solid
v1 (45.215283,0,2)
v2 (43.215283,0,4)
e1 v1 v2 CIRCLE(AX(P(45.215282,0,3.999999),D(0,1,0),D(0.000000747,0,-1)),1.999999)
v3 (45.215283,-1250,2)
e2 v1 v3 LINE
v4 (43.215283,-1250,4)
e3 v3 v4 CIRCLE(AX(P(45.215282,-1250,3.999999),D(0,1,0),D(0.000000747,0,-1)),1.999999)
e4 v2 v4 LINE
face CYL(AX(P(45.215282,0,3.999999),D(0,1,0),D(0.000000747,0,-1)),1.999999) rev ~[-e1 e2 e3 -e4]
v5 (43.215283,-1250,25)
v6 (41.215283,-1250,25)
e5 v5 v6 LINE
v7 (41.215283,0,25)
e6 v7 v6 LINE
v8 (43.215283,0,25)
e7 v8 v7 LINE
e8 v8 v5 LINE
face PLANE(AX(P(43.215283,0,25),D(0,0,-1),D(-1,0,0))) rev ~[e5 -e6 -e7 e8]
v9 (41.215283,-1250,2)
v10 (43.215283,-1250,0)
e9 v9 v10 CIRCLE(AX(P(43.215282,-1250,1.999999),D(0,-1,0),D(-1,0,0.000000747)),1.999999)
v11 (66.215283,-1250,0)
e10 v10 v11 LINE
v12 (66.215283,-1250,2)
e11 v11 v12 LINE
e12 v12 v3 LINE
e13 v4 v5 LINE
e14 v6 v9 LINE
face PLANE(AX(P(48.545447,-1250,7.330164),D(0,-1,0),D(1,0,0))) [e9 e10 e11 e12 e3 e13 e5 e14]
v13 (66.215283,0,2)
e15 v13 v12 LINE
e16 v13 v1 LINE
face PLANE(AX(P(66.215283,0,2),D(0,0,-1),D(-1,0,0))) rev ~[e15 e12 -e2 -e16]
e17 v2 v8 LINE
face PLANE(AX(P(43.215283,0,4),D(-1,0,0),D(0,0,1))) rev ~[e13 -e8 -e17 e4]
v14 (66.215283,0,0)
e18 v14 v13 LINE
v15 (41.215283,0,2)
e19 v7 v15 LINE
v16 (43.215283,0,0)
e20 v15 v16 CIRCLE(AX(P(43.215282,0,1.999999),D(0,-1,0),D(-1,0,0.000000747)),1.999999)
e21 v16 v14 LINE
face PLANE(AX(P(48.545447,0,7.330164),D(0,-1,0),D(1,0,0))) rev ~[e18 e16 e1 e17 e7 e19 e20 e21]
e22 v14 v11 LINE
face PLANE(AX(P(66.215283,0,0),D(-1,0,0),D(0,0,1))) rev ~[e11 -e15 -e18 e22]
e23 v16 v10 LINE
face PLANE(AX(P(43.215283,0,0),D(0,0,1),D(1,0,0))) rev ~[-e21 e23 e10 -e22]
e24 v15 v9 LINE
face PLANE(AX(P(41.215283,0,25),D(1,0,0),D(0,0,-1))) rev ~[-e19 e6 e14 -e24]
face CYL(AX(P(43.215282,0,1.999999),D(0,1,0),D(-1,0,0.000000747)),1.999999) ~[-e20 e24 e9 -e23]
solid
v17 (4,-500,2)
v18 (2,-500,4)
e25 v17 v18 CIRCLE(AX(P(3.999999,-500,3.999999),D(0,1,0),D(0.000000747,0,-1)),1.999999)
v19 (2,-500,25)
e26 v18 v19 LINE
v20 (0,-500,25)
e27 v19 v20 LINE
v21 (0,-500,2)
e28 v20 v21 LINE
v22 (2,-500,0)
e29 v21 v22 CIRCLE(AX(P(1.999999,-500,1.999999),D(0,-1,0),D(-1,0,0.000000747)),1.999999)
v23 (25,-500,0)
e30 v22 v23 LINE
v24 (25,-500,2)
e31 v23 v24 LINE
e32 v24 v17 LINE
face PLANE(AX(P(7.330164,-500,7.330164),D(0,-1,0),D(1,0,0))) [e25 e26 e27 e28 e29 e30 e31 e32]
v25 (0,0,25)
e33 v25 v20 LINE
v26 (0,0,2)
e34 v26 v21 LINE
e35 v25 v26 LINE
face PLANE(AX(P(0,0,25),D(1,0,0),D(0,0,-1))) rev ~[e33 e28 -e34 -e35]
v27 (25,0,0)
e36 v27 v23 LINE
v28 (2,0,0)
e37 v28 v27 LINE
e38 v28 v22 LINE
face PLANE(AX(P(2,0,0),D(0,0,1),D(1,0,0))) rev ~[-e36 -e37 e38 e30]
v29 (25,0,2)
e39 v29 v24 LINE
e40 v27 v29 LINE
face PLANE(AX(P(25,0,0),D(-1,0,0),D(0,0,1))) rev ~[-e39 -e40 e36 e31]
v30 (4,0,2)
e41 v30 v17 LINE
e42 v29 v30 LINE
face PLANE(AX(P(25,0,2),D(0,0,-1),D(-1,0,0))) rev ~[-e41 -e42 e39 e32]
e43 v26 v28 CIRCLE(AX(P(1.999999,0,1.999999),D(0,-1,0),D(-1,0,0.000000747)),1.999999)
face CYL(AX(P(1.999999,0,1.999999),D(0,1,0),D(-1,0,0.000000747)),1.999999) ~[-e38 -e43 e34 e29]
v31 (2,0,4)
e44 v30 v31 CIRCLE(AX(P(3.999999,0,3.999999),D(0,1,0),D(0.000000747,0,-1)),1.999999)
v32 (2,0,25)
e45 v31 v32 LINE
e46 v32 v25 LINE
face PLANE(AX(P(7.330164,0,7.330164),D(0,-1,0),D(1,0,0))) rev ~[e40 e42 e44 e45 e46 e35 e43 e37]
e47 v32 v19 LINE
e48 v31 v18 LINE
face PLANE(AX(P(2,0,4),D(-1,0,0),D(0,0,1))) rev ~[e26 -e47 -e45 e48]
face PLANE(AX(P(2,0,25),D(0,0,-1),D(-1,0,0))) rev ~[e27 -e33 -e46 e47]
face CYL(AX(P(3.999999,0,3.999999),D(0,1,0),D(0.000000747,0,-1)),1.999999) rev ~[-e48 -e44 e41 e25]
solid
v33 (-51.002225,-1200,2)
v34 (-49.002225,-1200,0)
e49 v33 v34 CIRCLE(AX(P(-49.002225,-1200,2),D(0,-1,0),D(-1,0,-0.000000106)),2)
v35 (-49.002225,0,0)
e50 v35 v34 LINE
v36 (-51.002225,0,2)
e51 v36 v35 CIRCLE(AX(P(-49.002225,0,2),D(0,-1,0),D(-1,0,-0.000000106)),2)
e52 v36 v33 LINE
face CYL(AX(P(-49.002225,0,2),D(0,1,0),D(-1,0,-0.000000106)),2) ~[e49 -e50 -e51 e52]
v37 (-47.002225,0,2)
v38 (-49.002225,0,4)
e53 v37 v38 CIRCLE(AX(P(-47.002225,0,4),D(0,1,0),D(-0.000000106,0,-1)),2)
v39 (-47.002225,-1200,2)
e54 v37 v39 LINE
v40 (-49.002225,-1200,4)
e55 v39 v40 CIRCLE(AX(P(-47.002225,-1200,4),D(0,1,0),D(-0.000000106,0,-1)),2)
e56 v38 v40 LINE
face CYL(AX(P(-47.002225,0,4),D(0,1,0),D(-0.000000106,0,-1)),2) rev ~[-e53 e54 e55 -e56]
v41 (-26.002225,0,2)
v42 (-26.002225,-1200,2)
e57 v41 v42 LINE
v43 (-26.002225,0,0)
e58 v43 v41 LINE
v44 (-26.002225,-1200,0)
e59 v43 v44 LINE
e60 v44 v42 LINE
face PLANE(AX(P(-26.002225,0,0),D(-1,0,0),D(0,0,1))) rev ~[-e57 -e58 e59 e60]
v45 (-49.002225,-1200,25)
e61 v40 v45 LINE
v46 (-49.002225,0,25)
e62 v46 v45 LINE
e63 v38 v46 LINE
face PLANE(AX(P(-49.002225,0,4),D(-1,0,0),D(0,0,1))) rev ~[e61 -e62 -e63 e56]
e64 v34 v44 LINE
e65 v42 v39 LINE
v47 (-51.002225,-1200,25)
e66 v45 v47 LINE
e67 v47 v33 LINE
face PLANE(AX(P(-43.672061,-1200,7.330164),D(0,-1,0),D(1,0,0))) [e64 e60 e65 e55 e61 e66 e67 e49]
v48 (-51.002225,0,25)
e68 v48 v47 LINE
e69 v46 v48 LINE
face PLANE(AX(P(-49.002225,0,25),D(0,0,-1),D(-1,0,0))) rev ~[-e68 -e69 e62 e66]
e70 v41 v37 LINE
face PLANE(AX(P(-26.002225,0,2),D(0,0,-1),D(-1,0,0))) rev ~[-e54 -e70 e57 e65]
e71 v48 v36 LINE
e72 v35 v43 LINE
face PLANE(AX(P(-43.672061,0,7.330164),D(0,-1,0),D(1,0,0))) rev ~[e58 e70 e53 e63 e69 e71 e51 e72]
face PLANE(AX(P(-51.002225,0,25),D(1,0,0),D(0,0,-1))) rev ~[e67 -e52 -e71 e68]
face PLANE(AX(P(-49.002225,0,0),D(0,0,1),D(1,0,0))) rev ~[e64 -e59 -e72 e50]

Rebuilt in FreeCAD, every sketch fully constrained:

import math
import FreeCAD as App
import Part
import Sketcher

V = App.Vector

doc = App.newDocument("Part")
body = doc.addObject("PartDesign::Body", "Body")

sketch1 = body.newObject("Sketcher::SketchObject", "Sketch")
sketch1.AttachmentSupport = (doc.getObject("XZ_Plane"), [""])
sketch1.MapMode = "FlatFace"
sketch1.addGeometry(Part.LineSegment(V(0, 25, 0), V(0, 2, 0)), False)
sketch1.addGeometry(Part.ArcOfCircle(Part.Circle(V(1.999999, 1.999999, 0), V(0, 0, 1), 1.999999), math.radians(179.999957), math.radians(270.000043)), False)
sketch1.addGeometry(Part.LineSegment(V(2, 0, 0), V(25, 0, 0)), False)
sketch1.addGeometry(Part.LineSegment(V(25, 0, 0), V(25, 2, 0)), False)
sketch1.addGeometry(Part.LineSegment(V(25, 2, 0), V(4, 2, 0)), False)
sketch1.addGeometry(Part.ArcOfCircle(Part.Circle(V(3.999999, 3.999999, 0), V(0, 0, 1), 1.999999), math.radians(179.999957), math.radians(270.000043)), False)
sketch1.addGeometry(Part.LineSegment(V(2, 4, 0), V(2, 25, 0)), False)
sketch1.addGeometry(Part.LineSegment(V(2, 25, 0), V(0, 25, 0)), False)
sketch1.addConstraint(Sketcher.Constraint("Tangent", 0, 2, 1, 1))
sketch1.addConstraint(Sketcher.Constraint("Tangent", 1, 2, 2, 1))
sketch1.addConstraint(Sketcher.Constraint("Coincident", 2, 2, 3, 1))
sketch1.addConstraint(Sketcher.Constraint("Coincident", 3, 2, 4, 1))
sketch1.addConstraint(Sketcher.Constraint("Tangent", 4, 2, 5, 2))
sketch1.addConstraint(Sketcher.Constraint("Tangent", 5, 1, 6, 1))
sketch1.addConstraint(Sketcher.Constraint("Coincident", 6, 2, 7, 1))
sketch1.addConstraint(Sketcher.Constraint("Coincident", 7, 2, 0, 1))
sketch1.addConstraint(Sketcher.Constraint("Vertical", 0))
sketch1.addConstraint(Sketcher.Constraint("Horizontal", 2))
sketch1.addConstraint(Sketcher.Constraint("Vertical", 3))
sketch1.addConstraint(Sketcher.Constraint("Horizontal", 4))
sketch1.addConstraint(Sketcher.Constraint("Vertical", 6))
sketch1.addConstraint(Sketcher.Constraint("Horizontal", 7))
sketch1.addConstraint(Sketcher.Constraint("Equal", 1, 5))
sketch1.addConstraint(Sketcher.Constraint("PointOnObject", 0, 2, -2))
sketch1.addConstraint(Sketcher.Constraint("PointOnObject", 1, 2, -1))
sketch1.addConstraint(Sketcher.Constraint("Horizontal", 0, 2, 3, 2))
sketch1.addConstraint(Sketcher.Constraint("Vertical", 1, 2, 5, 1))
sketch1.addConstraint(Sketcher.Constraint("Equal", 2, 0))
sketch1.addConstraint(Sketcher.Constraint("Radius", 1, 1.999999))
sketch1.addConstraint(Sketcher.Constraint("DistanceX", 2, 1, 2, 2, 23.0))
pad1 = body.newObject("PartDesign::Pad", "Pad")
pad1.Profile = sketch1
pad1.Length = 500
body2 = doc.addObject("PartDesign::Body", "Body001")

sketch2 = body2.newObject("Sketcher::SketchObject", "Sketch001")
sketch2.AttachmentSupport = (doc.getObject("XZ_Plane001"), [""])
sketch2.MapMode = "FlatFace"
sketch2.addGeometry(Part.LineSegment(V(41.215283, 25, 0), V(41.215283, 2, 0)), False)
sketch2.addGeometry(Part.ArcOfCircle(Part.Circle(V(43.215282, 1.999999, 0), V(0, 0, 1), 1.999999), math.radians(179.999957), math.radians(270.000043)), False)
sketch2.addGeometry(Part.LineSegment(V(43.215283, 0, 0), V(66.215283, 0, 0)), False)
sketch2.addGeometry(Part.LineSegment(V(66.215283, 0, 0), V(66.215283, 2, 0)), False)
sketch2.addGeometry(Part.LineSegment(V(66.215283, 2, 0), V(45.215283, 2, 0)), False)
sketch2.addGeometry(Part.ArcOfCircle(Part.Circle(V(45.215282, 3.999999, 0), V(0, 0, 1), 1.999999), math.radians(179.999957), math.radians(270.000043)), False)
sketch2.addGeometry(Part.LineSegment(V(43.215283, 4, 0), V(43.215283, 25, 0)), False)
sketch2.addGeometry(Part.LineSegment(V(43.215283, 25, 0), V(41.215283, 25, 0)), False)
sketch2.addConstraint(Sketcher.Constraint("Tangent", 0, 2, 1, 1))
sketch2.addConstraint(Sketcher.Constraint("Tangent", 1, 2, 2, 1))
sketch2.addConstraint(Sketcher.Constraint("Coincident", 2, 2, 3, 1))
sketch2.addConstraint(Sketcher.Constraint("Coincident", 3, 2, 4, 1))
sketch2.addConstraint(Sketcher.Constraint("Tangent", 4, 2, 5, 2))
sketch2.addConstraint(Sketcher.Constraint("Tangent", 5, 1, 6, 1))
sketch2.addConstraint(Sketcher.Constraint("Coincident", 6, 2, 7, 1))
sketch2.addConstraint(Sketcher.Constraint("Coincident", 7, 2, 0, 1))
sketch2.addConstraint(Sketcher.Constraint("Vertical", 0))
sketch2.addConstraint(Sketcher.Constraint("Horizontal", 2))
sketch2.addConstraint(Sketcher.Constraint("Vertical", 3))
sketch2.addConstraint(Sketcher.Constraint("Horizontal", 4))
sketch2.addConstraint(Sketcher.Constraint("Vertical", 6))
sketch2.addConstraint(Sketcher.Constraint("Horizontal", 7))
sketch2.addConstraint(Sketcher.Constraint("Equal", 1, 5))
sketch2.addConstraint(Sketcher.Constraint("PointOnObject", 1, 2, -1))
sketch2.addConstraint(Sketcher.Constraint("Horizontal", 0, 2, 3, 2))
sketch2.addConstraint(Sketcher.Constraint("Vertical", 1, 2, 5, 1))
sketch2.addConstraint(Sketcher.Constraint("Equal", 2, 0))
sketch2.addConstraint(Sketcher.Constraint("Radius", 1, 1.999999))
sketch2.addConstraint(Sketcher.Constraint("DistanceX", 2, 1, 2, 2, 23.0))
sketch2.addConstraint(Sketcher.Constraint("DistanceX", -1, 1, 1, 3, 43.215282))
pad2 = body2.newObject("PartDesign::Pad", "Pad001")
pad2.Profile = sketch2
pad2.Length = 1250
body3 = doc.addObject("PartDesign::Body", "Body002")

sketch3 = body3.newObject("Sketcher::SketchObject", "Sketch002")
sketch3.AttachmentSupport = (doc.getObject("XZ_Plane002"), [""])
sketch3.MapMode = "FlatFace"
sketch3.addGeometry(Part.LineSegment(V(-51.002225, 25, 0), V(-51.002225, 2, 0)), False)
sketch3.addGeometry(Part.ArcOfCircle(Part.Circle(V(-49.002225, 2, 0), V(0, 0, 1), 2), math.radians(-179.999994), math.radians(-90.000006)), False)
sketch3.addGeometry(Part.LineSegment(V(-49.002225, 0, 0), V(-26.002225, 0, 0)), False)
sketch3.addGeometry(Part.LineSegment(V(-26.002225, 0, 0), V(-26.002225, 2, 0)), False)
sketch3.addGeometry(Part.LineSegment(V(-26.002225, 2, 0), V(-47.002225, 2, 0)), False)
sketch3.addGeometry(Part.ArcOfCircle(Part.Circle(V(-47.002225, 4, 0), V(0, 0, 1), 2), math.radians(-179.999994), math.radians(-90.000006)), False)
sketch3.addGeometry(Part.LineSegment(V(-49.002225, 4, 0), V(-49.002225, 25, 0)), False)
sketch3.addGeometry(Part.LineSegment(V(-49.002225, 25, 0), V(-51.002225, 25, 0)), False)
sketch3.addConstraint(Sketcher.Constraint("Tangent", 0, 2, 1, 1))
sketch3.addConstraint(Sketcher.Constraint("Tangent", 1, 2, 2, 1))
sketch3.addConstraint(Sketcher.Constraint("Coincident", 2, 2, 3, 1))
sketch3.addConstraint(Sketcher.Constraint("Coincident", 3, 2, 4, 1))
sketch3.addConstraint(Sketcher.Constraint("Tangent", 4, 2, 5, 2))
sketch3.addConstraint(Sketcher.Constraint("Tangent", 5, 1, 6, 1))
sketch3.addConstraint(Sketcher.Constraint("Coincident", 6, 2, 7, 1))
sketch3.addConstraint(Sketcher.Constraint("Coincident", 7, 2, 0, 1))
sketch3.addConstraint(Sketcher.Constraint("Vertical", 0))
sketch3.addConstraint(Sketcher.Constraint("Horizontal", 2))
sketch3.addConstraint(Sketcher.Constraint("Vertical", 3))
sketch3.addConstraint(Sketcher.Constraint("Horizontal", 4))
sketch3.addConstraint(Sketcher.Constraint("Vertical", 6))
sketch3.addConstraint(Sketcher.Constraint("Horizontal", 7))
sketch3.addConstraint(Sketcher.Constraint("Equal", 1, 5))
sketch3.addConstraint(Sketcher.Constraint("PointOnObject", 1, 2, -1))
sketch3.addConstraint(Sketcher.Constraint("Horizontal", 0, 2, 3, 2))
sketch3.addConstraint(Sketcher.Constraint("Vertical", 1, 2, 5, 1))
sketch3.addConstraint(Sketcher.Constraint("Equal", 2, 0))
sketch3.addConstraint(Sketcher.Constraint("Radius", 1, 2.0))
sketch3.addConstraint(Sketcher.Constraint("DistanceX", 2, 1, 2, 2, 23.0))
sketch3.addConstraint(Sketcher.Constraint("DistanceX", 1, 3, -1, 1, 49.002225))
pad3 = body3.newObject("PartDesign::Pad", "Pad002")
pad3.Profile = sketch3
pad3.Length = 1200

doc.recompute()
